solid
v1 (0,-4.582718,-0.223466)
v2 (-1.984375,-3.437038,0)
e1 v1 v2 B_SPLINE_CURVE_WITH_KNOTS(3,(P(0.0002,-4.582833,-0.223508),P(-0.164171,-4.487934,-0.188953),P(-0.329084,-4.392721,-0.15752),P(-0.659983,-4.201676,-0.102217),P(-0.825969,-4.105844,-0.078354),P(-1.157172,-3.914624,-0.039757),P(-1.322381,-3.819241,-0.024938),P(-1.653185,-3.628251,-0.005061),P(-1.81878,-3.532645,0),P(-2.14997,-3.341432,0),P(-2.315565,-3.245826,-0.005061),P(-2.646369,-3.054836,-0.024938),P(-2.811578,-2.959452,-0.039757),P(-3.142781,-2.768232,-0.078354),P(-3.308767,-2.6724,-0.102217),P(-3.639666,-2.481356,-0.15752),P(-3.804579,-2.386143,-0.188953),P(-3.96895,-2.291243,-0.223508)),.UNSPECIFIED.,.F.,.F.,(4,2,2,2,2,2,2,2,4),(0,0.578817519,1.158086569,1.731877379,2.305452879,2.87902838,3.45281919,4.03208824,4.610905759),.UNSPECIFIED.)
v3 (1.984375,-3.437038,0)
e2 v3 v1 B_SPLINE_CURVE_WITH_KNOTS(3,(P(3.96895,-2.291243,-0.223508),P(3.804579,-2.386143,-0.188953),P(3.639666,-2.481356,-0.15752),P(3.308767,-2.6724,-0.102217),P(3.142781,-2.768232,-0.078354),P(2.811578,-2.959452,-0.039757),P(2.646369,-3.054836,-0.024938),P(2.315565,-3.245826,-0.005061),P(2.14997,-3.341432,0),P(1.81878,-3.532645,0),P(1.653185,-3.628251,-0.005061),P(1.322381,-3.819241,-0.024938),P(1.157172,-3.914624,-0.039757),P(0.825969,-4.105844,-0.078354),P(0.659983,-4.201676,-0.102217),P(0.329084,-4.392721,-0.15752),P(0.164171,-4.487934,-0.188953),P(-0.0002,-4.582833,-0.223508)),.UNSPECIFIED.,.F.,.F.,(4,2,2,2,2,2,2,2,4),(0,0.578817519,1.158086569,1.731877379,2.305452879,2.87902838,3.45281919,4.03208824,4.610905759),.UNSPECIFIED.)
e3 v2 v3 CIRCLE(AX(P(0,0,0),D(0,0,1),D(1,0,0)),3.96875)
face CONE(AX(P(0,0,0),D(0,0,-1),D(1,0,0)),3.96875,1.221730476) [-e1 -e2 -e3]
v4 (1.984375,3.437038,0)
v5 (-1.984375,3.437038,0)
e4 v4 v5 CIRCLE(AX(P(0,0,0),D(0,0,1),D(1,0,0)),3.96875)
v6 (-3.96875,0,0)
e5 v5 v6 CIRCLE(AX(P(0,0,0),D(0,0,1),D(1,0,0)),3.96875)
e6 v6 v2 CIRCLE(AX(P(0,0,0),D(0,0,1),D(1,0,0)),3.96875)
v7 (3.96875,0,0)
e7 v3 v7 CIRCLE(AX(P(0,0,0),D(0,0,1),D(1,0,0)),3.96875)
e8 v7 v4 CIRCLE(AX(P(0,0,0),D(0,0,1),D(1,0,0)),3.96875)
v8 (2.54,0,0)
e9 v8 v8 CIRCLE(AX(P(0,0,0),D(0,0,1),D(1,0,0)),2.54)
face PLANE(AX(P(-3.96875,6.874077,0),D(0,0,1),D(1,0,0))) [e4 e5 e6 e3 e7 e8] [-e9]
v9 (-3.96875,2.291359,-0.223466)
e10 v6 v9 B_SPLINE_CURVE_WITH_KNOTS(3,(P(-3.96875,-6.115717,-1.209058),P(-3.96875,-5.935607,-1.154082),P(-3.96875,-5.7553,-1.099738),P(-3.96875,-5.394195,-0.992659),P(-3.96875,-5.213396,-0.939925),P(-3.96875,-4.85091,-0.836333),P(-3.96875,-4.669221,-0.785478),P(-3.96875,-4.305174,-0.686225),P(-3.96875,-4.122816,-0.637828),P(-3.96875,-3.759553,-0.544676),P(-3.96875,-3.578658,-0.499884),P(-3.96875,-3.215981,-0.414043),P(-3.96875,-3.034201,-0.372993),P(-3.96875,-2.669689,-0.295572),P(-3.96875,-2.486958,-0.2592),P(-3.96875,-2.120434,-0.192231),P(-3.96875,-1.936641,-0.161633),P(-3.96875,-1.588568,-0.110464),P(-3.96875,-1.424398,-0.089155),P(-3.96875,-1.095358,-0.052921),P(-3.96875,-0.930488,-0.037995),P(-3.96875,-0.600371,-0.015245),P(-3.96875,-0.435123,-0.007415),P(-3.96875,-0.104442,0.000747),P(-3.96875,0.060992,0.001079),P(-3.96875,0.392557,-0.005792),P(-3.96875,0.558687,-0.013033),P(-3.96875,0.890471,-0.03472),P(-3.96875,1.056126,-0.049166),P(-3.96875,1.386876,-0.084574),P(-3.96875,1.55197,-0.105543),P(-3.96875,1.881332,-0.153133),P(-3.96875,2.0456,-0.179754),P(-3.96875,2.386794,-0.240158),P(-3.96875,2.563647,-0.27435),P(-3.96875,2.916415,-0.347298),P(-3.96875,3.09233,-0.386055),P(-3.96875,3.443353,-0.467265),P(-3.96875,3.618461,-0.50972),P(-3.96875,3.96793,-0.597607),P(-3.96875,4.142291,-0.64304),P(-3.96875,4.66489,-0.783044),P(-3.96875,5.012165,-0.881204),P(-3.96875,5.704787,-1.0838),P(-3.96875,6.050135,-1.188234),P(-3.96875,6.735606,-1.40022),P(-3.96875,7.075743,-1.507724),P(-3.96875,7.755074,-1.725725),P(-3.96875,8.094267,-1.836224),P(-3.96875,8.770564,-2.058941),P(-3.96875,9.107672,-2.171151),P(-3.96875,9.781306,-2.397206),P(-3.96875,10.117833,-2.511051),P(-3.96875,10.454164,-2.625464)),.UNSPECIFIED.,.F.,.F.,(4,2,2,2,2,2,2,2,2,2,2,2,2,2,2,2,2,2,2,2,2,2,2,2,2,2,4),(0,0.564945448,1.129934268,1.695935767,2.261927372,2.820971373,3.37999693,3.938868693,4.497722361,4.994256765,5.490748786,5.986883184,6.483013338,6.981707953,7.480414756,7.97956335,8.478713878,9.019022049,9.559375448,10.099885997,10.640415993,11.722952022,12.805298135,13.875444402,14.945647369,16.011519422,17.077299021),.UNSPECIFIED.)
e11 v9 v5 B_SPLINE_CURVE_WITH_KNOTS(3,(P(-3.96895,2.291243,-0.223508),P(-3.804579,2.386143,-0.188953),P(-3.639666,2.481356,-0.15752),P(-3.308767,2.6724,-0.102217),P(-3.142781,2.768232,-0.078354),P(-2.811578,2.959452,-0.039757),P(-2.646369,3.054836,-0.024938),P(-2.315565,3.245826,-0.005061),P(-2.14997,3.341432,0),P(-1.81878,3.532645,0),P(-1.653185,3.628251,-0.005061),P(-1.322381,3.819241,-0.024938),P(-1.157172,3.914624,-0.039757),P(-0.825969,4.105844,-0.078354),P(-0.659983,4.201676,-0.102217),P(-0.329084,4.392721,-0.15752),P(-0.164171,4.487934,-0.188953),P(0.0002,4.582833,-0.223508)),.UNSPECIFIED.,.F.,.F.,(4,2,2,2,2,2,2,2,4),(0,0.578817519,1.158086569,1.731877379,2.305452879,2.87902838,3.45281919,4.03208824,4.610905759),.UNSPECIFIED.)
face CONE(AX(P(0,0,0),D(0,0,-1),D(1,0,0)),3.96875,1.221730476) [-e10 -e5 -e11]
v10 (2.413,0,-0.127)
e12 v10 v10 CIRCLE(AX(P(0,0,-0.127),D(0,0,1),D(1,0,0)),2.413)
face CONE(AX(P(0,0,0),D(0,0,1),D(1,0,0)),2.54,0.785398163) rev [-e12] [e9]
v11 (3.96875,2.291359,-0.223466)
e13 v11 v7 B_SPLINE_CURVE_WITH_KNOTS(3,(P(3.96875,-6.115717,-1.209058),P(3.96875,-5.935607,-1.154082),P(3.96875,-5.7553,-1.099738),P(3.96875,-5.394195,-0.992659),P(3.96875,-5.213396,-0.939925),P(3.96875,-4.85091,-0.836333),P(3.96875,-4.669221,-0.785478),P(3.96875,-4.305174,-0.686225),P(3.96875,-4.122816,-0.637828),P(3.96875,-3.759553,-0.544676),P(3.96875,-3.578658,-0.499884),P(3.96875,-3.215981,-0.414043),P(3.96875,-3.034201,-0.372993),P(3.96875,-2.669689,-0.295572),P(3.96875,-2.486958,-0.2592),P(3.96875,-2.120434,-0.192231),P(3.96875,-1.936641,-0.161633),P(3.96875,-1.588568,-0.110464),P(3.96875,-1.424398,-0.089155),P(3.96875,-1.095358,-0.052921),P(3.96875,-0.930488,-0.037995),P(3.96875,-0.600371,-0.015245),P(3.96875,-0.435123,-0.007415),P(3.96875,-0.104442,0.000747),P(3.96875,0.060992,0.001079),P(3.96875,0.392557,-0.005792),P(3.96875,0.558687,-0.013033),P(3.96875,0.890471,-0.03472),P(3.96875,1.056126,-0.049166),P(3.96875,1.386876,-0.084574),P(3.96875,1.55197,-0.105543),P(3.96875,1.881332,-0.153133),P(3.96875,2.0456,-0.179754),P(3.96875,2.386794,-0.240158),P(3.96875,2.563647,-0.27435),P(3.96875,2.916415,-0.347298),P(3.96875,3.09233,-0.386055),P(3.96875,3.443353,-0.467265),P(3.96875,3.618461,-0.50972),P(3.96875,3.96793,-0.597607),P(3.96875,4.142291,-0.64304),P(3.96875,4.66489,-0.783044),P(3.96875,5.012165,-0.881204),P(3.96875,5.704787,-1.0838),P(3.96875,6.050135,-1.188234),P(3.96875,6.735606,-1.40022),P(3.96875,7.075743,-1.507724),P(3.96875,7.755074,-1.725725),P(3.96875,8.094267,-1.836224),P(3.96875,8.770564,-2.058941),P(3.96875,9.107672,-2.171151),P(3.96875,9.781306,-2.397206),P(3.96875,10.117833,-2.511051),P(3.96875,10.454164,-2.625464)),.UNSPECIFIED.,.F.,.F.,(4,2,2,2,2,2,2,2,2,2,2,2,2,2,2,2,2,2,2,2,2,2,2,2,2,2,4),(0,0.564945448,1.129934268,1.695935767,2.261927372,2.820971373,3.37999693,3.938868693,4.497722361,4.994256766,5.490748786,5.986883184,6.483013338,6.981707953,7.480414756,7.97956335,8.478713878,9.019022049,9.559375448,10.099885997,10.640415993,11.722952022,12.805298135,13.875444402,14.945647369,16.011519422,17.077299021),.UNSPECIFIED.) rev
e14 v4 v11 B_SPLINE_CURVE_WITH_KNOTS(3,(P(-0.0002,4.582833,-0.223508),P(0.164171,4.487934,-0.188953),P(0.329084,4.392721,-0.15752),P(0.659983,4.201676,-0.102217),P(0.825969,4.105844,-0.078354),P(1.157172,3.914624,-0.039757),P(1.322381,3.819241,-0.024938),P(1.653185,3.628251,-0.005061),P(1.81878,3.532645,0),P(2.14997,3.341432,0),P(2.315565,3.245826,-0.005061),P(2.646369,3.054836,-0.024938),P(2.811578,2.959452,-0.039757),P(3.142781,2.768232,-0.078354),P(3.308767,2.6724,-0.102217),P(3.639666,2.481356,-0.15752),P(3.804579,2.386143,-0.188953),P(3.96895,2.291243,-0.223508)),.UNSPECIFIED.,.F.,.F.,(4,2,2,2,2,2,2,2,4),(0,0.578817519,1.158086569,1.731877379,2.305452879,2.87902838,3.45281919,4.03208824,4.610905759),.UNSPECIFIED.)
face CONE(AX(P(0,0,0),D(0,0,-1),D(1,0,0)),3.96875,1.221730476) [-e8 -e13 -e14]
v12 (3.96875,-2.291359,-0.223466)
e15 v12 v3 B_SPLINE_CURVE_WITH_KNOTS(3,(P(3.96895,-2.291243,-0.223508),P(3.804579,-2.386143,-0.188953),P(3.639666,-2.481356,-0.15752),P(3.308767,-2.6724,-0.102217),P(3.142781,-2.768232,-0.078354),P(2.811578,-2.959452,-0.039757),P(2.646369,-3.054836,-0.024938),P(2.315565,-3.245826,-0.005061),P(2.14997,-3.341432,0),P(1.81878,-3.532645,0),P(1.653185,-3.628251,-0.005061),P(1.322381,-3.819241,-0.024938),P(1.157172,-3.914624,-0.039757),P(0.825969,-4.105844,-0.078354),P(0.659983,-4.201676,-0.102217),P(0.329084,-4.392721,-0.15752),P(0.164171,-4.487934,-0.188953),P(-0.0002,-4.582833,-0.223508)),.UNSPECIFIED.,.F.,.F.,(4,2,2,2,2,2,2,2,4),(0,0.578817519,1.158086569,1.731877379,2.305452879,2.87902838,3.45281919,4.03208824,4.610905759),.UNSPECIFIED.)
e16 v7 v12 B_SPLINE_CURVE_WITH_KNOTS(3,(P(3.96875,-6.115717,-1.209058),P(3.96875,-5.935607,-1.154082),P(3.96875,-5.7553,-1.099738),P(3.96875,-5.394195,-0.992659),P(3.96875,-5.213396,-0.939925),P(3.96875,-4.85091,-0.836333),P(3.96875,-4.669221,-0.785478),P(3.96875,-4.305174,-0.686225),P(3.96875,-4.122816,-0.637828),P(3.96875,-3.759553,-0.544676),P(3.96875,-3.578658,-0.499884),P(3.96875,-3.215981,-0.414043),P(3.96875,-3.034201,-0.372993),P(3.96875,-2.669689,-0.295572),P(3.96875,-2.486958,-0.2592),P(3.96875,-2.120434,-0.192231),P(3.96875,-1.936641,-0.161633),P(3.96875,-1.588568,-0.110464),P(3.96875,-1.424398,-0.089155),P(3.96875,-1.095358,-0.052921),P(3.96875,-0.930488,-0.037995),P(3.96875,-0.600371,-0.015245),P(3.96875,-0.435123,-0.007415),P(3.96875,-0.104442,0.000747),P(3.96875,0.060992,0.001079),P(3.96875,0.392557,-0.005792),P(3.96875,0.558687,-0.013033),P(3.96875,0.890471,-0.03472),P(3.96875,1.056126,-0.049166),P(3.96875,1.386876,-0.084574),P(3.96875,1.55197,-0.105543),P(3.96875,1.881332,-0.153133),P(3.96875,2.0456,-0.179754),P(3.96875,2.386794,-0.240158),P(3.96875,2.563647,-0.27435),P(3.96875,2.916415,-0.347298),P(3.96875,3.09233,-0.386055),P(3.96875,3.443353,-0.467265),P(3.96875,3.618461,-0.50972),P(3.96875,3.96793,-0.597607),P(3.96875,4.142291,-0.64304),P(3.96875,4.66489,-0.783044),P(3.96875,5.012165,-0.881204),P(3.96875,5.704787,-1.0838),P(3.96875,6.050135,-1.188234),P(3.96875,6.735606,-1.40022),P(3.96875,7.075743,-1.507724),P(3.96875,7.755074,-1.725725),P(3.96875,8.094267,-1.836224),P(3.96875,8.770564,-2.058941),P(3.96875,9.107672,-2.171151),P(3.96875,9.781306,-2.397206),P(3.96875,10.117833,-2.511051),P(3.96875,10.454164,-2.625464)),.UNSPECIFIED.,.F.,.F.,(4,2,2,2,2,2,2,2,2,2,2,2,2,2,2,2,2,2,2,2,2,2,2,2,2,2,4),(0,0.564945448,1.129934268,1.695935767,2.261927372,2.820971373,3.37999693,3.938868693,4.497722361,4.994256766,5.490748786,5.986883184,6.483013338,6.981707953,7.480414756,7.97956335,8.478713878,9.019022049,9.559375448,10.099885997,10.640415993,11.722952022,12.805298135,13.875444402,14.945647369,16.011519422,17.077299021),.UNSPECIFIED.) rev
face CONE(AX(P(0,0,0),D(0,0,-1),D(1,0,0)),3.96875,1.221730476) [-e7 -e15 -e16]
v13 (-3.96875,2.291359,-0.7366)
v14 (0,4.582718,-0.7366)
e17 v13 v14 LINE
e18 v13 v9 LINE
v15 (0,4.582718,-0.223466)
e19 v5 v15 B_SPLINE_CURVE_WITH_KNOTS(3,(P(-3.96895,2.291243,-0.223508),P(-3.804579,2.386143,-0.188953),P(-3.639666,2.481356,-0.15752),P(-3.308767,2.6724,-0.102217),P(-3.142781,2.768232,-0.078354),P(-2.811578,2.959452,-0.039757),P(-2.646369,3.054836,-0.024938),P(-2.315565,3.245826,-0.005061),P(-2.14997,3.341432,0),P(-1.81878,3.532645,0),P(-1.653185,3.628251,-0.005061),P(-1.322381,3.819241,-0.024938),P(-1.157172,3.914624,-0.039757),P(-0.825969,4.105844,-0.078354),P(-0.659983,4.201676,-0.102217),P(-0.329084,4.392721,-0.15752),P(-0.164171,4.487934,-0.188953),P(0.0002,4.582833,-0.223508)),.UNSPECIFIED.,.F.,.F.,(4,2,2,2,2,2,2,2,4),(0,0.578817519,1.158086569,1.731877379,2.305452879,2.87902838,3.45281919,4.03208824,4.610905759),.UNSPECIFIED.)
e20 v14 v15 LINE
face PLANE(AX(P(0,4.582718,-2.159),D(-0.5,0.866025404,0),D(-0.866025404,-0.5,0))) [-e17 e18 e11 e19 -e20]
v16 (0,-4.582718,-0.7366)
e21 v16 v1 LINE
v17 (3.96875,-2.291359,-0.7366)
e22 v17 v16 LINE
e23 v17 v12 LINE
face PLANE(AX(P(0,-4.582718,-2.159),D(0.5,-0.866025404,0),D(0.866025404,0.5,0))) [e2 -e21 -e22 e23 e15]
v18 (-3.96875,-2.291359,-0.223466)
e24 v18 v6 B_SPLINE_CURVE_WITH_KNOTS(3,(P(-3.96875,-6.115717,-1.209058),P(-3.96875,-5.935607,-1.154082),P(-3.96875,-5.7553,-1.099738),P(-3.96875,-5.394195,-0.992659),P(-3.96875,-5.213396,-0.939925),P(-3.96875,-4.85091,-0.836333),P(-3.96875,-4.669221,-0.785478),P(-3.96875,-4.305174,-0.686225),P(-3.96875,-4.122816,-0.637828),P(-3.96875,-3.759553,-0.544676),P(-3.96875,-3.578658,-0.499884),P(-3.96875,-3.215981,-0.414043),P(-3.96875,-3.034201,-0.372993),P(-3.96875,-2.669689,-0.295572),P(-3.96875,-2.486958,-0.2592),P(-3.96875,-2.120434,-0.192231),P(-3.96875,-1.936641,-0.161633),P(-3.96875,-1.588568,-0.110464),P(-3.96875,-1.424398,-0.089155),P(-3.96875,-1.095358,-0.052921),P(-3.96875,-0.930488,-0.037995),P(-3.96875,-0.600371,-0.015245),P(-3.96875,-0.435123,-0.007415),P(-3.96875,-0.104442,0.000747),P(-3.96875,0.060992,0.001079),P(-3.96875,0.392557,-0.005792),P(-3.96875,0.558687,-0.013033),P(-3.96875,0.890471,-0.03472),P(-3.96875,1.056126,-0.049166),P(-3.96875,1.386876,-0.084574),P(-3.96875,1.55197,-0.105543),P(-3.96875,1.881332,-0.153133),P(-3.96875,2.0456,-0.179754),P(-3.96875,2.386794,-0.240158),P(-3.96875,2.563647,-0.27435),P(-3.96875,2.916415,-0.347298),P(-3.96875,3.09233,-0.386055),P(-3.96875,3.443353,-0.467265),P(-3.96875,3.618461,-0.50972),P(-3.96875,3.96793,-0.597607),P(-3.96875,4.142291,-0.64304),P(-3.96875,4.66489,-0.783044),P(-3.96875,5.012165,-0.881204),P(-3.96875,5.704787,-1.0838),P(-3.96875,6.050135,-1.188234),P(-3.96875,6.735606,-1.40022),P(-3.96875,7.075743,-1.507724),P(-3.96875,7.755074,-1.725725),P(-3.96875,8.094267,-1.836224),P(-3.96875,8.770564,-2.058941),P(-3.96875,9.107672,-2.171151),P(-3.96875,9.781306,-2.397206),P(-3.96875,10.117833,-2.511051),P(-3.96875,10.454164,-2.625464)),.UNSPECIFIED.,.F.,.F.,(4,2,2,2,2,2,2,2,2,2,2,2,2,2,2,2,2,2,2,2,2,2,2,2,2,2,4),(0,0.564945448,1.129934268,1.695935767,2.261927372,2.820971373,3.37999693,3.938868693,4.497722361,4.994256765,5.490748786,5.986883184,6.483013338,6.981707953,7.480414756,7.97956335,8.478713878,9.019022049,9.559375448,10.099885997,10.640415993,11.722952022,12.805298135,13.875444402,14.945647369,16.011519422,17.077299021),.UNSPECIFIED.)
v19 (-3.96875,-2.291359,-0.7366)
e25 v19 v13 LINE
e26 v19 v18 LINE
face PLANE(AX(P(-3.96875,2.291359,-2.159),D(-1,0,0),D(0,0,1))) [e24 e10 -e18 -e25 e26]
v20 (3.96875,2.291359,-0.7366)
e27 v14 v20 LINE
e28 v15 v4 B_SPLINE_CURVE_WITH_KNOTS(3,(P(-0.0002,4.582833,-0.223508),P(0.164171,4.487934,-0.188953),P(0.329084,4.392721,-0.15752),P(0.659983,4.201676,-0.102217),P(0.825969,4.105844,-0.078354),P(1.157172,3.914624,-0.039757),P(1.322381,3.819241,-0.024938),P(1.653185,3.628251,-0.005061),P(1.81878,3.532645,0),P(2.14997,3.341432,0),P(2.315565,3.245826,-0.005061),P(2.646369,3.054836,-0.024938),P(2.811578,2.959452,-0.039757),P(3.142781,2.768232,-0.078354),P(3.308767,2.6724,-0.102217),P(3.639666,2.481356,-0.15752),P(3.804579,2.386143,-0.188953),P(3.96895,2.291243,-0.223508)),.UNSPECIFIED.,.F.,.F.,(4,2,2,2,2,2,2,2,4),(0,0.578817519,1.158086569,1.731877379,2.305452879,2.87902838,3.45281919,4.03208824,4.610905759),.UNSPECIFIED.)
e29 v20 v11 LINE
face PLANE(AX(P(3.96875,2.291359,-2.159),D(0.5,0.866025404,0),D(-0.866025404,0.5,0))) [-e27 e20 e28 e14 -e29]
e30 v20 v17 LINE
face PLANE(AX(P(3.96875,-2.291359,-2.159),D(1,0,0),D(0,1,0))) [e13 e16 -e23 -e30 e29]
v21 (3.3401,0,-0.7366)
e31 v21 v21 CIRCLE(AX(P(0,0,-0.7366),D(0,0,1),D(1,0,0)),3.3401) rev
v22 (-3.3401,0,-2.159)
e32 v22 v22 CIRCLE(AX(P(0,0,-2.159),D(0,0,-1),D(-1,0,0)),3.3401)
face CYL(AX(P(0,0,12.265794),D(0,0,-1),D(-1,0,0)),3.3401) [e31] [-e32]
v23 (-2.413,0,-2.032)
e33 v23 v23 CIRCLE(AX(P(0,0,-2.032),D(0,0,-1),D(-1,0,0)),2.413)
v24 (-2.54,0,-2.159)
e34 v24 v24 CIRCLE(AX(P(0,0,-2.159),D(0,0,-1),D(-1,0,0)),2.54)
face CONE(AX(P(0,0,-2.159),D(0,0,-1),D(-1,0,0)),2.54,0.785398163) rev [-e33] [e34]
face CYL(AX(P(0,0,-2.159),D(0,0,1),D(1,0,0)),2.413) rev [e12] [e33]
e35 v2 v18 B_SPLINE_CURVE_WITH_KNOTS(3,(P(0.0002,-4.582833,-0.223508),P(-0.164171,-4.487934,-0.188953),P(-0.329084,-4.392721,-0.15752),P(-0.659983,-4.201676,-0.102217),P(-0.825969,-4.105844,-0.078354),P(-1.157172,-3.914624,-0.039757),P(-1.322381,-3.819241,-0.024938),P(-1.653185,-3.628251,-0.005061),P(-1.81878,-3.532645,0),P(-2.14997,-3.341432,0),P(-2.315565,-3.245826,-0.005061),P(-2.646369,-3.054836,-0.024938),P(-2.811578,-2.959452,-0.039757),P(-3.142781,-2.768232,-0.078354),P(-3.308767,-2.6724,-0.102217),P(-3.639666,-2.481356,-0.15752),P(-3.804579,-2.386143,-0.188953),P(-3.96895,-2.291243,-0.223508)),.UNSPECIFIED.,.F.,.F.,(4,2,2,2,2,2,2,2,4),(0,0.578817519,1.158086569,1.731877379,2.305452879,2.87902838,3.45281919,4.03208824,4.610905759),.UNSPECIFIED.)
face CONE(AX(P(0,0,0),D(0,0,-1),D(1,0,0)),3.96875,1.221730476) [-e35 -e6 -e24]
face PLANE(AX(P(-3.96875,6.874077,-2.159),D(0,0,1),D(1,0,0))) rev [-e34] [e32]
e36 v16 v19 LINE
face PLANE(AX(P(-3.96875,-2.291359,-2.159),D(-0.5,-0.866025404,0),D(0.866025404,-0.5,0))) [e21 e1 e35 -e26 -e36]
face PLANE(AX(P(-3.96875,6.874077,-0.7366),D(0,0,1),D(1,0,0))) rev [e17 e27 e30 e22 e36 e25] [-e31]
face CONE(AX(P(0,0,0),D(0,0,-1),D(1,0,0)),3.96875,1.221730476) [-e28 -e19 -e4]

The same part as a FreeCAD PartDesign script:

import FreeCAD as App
import Part
import Sketcher
Q = App.Units.Quantity


def faces_at(feature, points):
    """Names of the faces that lie closest to the given points."""
    faces = feature.Shape.Faces
    near = lambda p: min(range(len(faces)), key=lambda i: faces[i].distToShape(Part.Vertex(*p))[0])
    return sorted({f"Face{near(p) + 1}" for p in points})


def add_polygon(sketch, points):
    """Adds a closed chain of lines whose ends are joined by coincident constraints."""
    first, n = sketch.GeometryCount, len(points)
    for a, b in zip(points, points[1:] + points[:1]):
        sketch.addGeometry(Part.LineSegment(App.Vector(*a, 0), App.Vector(*b, 0)), False)
    for i in range(n):
        sketch.addConstraint(Sketcher.Constraint("Coincident", first + i, 2, first + (i + 1) % n, 1))

doc = App.newDocument("Part")
body = doc.addObject("PartDesign::Body", "Body")

# Sketch on XY plane
sketch1 = doc.addObject("Sketcher::SketchObject", "Sketch")
body.addObject(sketch1)
sketch1.AttachmentSupport = (doc.XY_Plane, [""])
sketch1.MapMode = "FlatFace"
add_polygon(sketch1, [(0, 4.6), (-4, 2.3), (-4, -2.3), (0, -4.6), (4, -2.3), (4, 2.3)])  # lines 0-5
sketch1.addConstraint([
    Sketcher.Constraint("Vertical", 1),
    Sketcher.Constraint("Vertical", 4),
    Sketcher.Constraint("Symmetric", 0, 2, 3, 2, -1, 1),
    Sketcher.Constraint("Symmetric", 2, 2, 5, 2, -1, 1),
    Sketcher.Constraint("PointOnObject", 2, 2, -2),
    Sketcher.Constraint("Parallel", 2, 5),
    Sketcher.Constraint("Horizontal", 1, 2, 3, 2),
    Sketcher.Constraint("Angle", 0, Q("-150 deg")),
    Sketcher.Constraint("DistanceX", 0, 2, -1, 1, Q("0.15625 in")),
    Sketcher.Constraint("DistanceY", 1, 2, 1, 1, Q("4.582718 mm")),
])
pad1 = doc.addObject("PartDesign::Pad", "Pad")
body.addObject(pad1)
pad1.Profile = sketch1
pad1.Length = Q("0.085 in")
pad1.Reversed = True

# Sketch on XY plane
sketch2 = doc.addObject("Sketcher::SketchObject", "Sketch001")
body.addObject(sketch2)
sketch2.AttachmentSupport = (doc.XY_Plane, [""])
sketch2.MapMode = "FlatFace"
sketch2.AttachmentOffset = App.Placement(App.Vector(0, 0, -0.085 * 25.4), App.Rotation())
add_polygon(sketch2, [(6.2, 6.8), (6.2, -6.8), (-6.2, -6.8), (-6.2, 6.8)])  # lines 0-3
sketch2.addGeometry(Part.Circle(App.Vector(0, 0, 0), App.Vector(0, 0, 1), 3.3), False)  # 4
sketch2.addConstraint([
    Sketcher.Constraint("Vertical", 0),
    Sketcher.Constraint("Horizontal", 1),
    Sketcher.Constraint("Vertical", 2),
    Sketcher.Constraint("Horizontal", 3),
    Sketcher.Constraint("Coincident", 4, 3, -1, 1),
    Sketcher.Constraint("Symmetric", 0, 2, 2, 2, -1, 1),
    Sketcher.Constraint("Diameter", 4, Q("0.263 in")),
    Sketcher.Constraint("DistanceX", 1, 2, 1, 1, Q("12.402 mm")),
    Sketcher.Constraint("DistanceY", 0, 2, 0, 1, Q("13.63 mm")),
])
pocket1 = doc.addObject("PartDesign::Pocket", "Pocket")
body.addObject(pocket1)
pocket1.Profile = sketch2
pocket1.Length = Q("0.056 in")
pocket1.Reversed = True

# Sketch on XY plane
sketch3 = doc.addObject("Sketcher::SketchObject", "Sketch002")
body.addObject(sketch3)
sketch3.AttachmentSupport = (doc.XY_Plane, [""])
sketch3.MapMode = "FlatFace"
sketch3.addGeometry(Part.Circle(App.Vector(0, 0, 0), App.Vector(0, 0, 1), 2.4), False)
sketch3.addConstraint([
    Sketcher.Constraint("Coincident", 0, 3, -1, 1),
    Sketcher.Constraint("Diameter", 0, Q("0.19 in")),
])
pocket2 = doc.addObject("PartDesign::Pocket", "Pocket001")
body.addObject(pocket2)
pocket2.Profile = sketch3
pocket2.Type = "ThroughAll"

# Sketch on YZ plane
sketch4 = doc.addObject("Sketcher::SketchObject", "Sketch003")
body.addObject(sketch4)
sketch4.AttachmentSupport = (doc.YZ_Plane, [""])
sketch4.MapMode = "FlatFace"
add_polygon(sketch4, [(0, 0), (-2.5, 0), (0, -2.5)])  # lines 0-2
sketch4.addConstraint([
    Sketcher.Constraint("Horizontal", 0),
    Sketcher.Constraint("Vertical", 2),
    Sketcher.Constraint("Coincident", 2, 2, -1, 1),
    Sketcher.Constraint("Equal", 0, 2),
    Sketcher.Constraint("DistanceX", 0, 2, 0, 1, Q("0.1 in")),
])
groove = doc.addObject("PartDesign::Groove", "Groove")
body.addObject(groove)
groove.Profile = sketch4
groove.ReferenceAxis = (sketch4, ["V_Axis"])
groove.Angle = 360

# Sketch on YZ plane
sketch5 = doc.addObject("Sketcher::SketchObject", "Sketch004")
body.addObject(sketch5)
sketch5.AttachmentSupport = (doc.YZ_Plane, [""])
sketch5.MapMode = "FlatFace"
add_polygon(sketch5, [(0, -2.2), (2.5, -2.2), (0, 0.4)])  # lines 0-2
sketch5.addConstraint([
    Sketcher.Constraint("Horizontal", 0),
    Sketcher.Constraint("Vertical", 2),
    Sketcher.Constraint("PointOnObject", 1, 2, -2),
    Sketcher.Constraint("Equal", 0, 2),
    Sketcher.Constraint("DistanceX", 0, 1, 0, 2, Q("0.1 in")),
    Sketcher.Constraint("DistanceY", 0, 2, -1, 1, Q("0.085 in")),
])
groove2 = doc.addObject("PartDesign::Groove", "Groove001")
body.addObject(groove2)
groove2.Profile = sketch5
groove2.ReferenceAxis = (sketch5, ["V_Axis"])
groove2.Angle = 360
body2 = doc.addObject("PartDesign::Body", "Body001")

# Sketch on XY plane
sketch6 = doc.addObject("Sketcher::SketchObject", "Sketch005")
body2.addObject(sketch6)
sketch6.AttachmentSupport = (doc.getObject("XY_Plane001"), [""])
sketch6.MapMode = "FlatFace"
add_polygon(sketch6, [(-26.6, 27.2), (-26.6, -27.2), (26.6, -27.2), (26.6, 27.2)])  # lines 0-3
sketch6.addGeometry(Part.Circle(App.Vector(0, 0, 0), App.Vector(0, 0, 1), 4), False)  # 4
sketch6.addConstraint([
    Sketcher.Constraint("Vertical", 0),
    Sketcher.Constraint("Horizontal", 1),
    Sketcher.Constraint("Vertical", 2),
    Sketcher.Constraint("Horizontal", 3),
    Sketcher.Constraint("Coincident", 4, 3, -1, 1),
    Sketcher.Constraint("Symmetric", 0, 2, 2, 2, -1, 1),
    Sketcher.Constraint("Diameter", 4, Q("0.3125 in")),
    Sketcher.Constraint("DistanceX", 1, 1, 1, 2, Q("53.258 mm")),
    Sketcher.Constraint("DistanceY", 0, 2, 0, 1, Q("54.486 mm")),
])
pad2 = doc.addObject("PartDesign::Pad", "Pad001")
body2.addObject(pad2)
pad2.Profile = sketch6
pad2.Length = 7.435337
pad2.Reversed = True
doc.recompute()

draft = doc.addObject("PartDesign::Draft", "Draft")
body2.addObject(draft)
draft.Base = (pad2, faces_at(pad2, [
    (0, -27.243, -3.718),
    (26.629, 0, -3.718),
    (0, 27.243, -3.718),
    (-26.629, 0, -3.718),
    (-3.969, 0, -3.718),
]))
draft.NeutralPlane = (doc.getObject("XY_Plane001"), [""])
draft.Angle = 70
draft.Reversed = True
doc.recompute()

boolean = doc.addObject("PartDesign::Boolean", "Boolean")
body.addObject(boolean)
boolean.Type = "Cut"
boolean.addObjects([body2])

doc.recompute()
